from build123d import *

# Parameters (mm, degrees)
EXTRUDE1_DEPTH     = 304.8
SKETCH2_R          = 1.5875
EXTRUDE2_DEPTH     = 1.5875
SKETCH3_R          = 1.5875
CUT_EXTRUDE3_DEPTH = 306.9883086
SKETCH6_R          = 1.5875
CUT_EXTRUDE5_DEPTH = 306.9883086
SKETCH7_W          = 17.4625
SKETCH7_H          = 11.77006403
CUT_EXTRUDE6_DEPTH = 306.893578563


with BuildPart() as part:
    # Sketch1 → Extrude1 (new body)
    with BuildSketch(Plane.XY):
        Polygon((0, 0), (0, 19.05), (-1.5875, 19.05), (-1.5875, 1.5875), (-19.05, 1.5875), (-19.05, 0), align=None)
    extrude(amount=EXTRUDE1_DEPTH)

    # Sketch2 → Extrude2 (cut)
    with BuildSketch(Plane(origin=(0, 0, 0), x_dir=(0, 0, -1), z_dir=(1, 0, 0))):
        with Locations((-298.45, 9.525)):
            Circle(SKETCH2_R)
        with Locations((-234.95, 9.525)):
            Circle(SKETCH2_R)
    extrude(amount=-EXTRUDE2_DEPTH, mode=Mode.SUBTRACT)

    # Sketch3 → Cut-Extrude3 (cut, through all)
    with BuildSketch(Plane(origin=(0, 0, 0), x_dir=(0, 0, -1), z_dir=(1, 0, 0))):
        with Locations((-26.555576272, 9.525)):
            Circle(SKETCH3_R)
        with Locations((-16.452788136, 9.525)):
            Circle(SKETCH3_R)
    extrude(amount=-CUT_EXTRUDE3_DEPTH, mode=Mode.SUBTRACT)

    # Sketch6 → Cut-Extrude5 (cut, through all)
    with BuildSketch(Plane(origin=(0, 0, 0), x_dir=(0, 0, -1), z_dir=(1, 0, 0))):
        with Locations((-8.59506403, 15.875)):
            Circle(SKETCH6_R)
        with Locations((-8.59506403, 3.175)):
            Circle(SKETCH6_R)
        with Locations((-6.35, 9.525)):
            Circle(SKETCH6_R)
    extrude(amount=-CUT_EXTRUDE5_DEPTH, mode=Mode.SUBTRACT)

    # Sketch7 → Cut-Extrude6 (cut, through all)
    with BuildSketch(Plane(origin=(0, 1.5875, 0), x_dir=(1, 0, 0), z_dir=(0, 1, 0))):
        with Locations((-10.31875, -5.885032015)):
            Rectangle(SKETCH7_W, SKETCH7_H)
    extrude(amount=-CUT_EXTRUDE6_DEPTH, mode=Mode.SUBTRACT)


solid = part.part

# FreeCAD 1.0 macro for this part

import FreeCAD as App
import Part
import Sketcher
from FreeCAD import Vector
Q = App.Units.Quantity


def add_polygon(sketch, points):
    """Adds a closed chain of lines whose ends are joined by coincident constraints."""
    first, n = sketch.GeometryCount, len(points)
    for a, b in zip(points, points[1:] + points[:1]):
        sketch.addGeometry(Part.LineSegment(App.Vector(*a, 0), App.Vector(*b, 0)), False)
    for i in range(n):
        sketch.addConstraint(Sketcher.Constraint("Coincident", first + i, 2, first + (i + 1) % n, 1))

doc = App.newDocument("Part")
body = doc.addObject("PartDesign::Body", "Body")

sketch1 = doc.addObject("Sketcher::SketchObject", "Sketch")
body.addObject(sketch1)
sketch1.AttachmentSupport = (doc.XY_Plane, [""])
sketch1.MapMode = "FlatFace"
add_polygon(sketch1, [(0, 0), (0, 19.05), (-1.5875, 19.05), (-1.5875, 1.5875), (-19.05, 1.5875), (-19.05, 0)])
sketch1.addConstraint([
    Sketcher.Constraint("Vertical", 0),
    Sketcher.Constraint("Horizontal", 1),
    Sketcher.Constraint("Vertical", 2),
    Sketcher.Constraint("Horizontal", 3),
    Sketcher.Constraint("Vertical", 4),
    Sketcher.Constraint("Horizontal", 5),
    Sketcher.Constraint("Coincident", 5, 2, -1, 1),
    Sketcher.Constraint("Equal", 5, 0),
    Sketcher.Constraint("Equal", 3, 2),
    Sketcher.Constraint("DistanceX", 5, 1, 5, 2, Q("0.75 in")),
    Sketcher.Constraint("DistanceX", 1, 2, 1, 1, Q("0.0625 in")),
])
pad1 = doc.addObject("PartDesign::Pad", "Pad")
body.addObject(pad1)
pad1.Profile = sketch1
pad1.Length = Q("12 in")

sketch2 = doc.addObject("Sketcher::SketchObject", "Sketch001")
body.addObject(sketch2)
sketch2.AttachmentSupport = (doc.YZ_Plane, [""])
sketch2.MapMode = "FlatFace"
sketch2.addGeometry([
    Part.Circle(Vector(9.525, 298.45, 0), Vector(0, 0, 1), 1.5875),
    Part.Circle(Vector(9.525, 234.95, 0), Vector(0, 0, 1), 1.5875),
], False)
sketch2.addConstraint([
    Sketcher.Constraint("Equal", 0, 1),
    Sketcher.Constraint("Vertical", 0, 3, 1, 3),
    Sketcher.Constraint("Diameter", 0, Q("0.125 in")),
    Sketcher.Constraint("DistanceY", 1, 3, 0, 3, Q("2.5 in")),
    Sketcher.Constraint("DistanceY", -1, 1, 0, 3, Q("11.75 in")),
    Sketcher.Constraint("DistanceX", -1, 1, 0, 3, Q("0.375 in")),
])
pocket1 = doc.addObject("PartDesign::Pocket", "Pocket")
body.addObject(pocket1)
pocket1.Profile = sketch2
pocket1.Length = Q("0.0625 in")

sketch3 = doc.addObject("Sketcher::SketchObject", "Sketch002")
body.addObject(sketch3)
sketch3.AttachmentSupport = (doc.YZ_Plane, [""])
sketch3.MapMode = "FlatFace"
sketch3.addGeometry([
    Part.Circle(Vector(9.525, 26.555576, 0), Vector(0, 0, 1), 1.5875),
    Part.Circle(Vector(9.525, 16.452788, 0), Vector(0, 0, 1), 1.5875),
], False)
sketch3.addConstraint([
    Sketcher.Constraint("Equal", 0, 1),
    Sketcher.Constraint("Vertical", 0, 3, 1, 3),
    Sketcher.Constraint("Diameter", 0, Q("0.125 in")),
    Sketcher.Constraint("DistanceX", -1, 1, 0, 3, Q("0.375 in")),
    Sketcher.Constraint("DistanceY", -1, 1, 1, 3, Q("16.452788 mm")),
    Sketcher.Constraint("DistanceY", 1, 3, 0, 3, Q("10.102788 mm")),
])
pocket2 = doc.addObject("PartDesign::Pocket", "Pocket001")
body.addObject(pocket2)
pocket2.Profile = sketch3
pocket2.Type = "ThroughAll"

sketch4 = doc.addObject("Sketcher::SketchObject", "Sketch003")
body.addObject(sketch4)
sketch4.AttachmentSupport = (doc.YZ_Plane, [""])
sketch4.MapMode = "FlatFace"
sketch4.addGeometry([
    Part.Circle(Vector(15.875, 8.595064, 0), Vector(0, 0, 1), 1.5875),
    Part.Circle(Vector(3.175, 8.595064, 0), Vector(0, 0, 1), 1.5875),
    Part.Circle(Vector(9.525, 6.35, 0), Vector(0, 0, 1), 1.5875),
], False)
sketch4.addConstraint([
    Sketcher.Constraint("Equal", 0, 1),
    Sketcher.Constraint("Equal", 1, 2),
    Sketcher.Constraint("Horizontal", 0, 3, 1, 3),
    Sketcher.Constraint("Diameter", 0, Q("0.125 in")),
    Sketcher.Constraint("DistanceX", 1, 3, 0, 3, Q("0.5 in")),
    Sketcher.Constraint("DistanceY", -1, 1, 2, 3, Q("0.25 in")),
    Sketcher.Constraint("DistanceX", 2, 3, 0, 3, Q("0.25 in")),
    Sketcher.Constraint("DistanceX", -1, 1, 0, 3, Q("0.625 in")),
    Sketcher.Constraint("DistanceY", -1, 1, 0, 3, Q("8.595064 mm")),
])
pocket3 = doc.addObject("PartDesign::Pocket", "Pocket002")
body.addObject(pocket3)
pocket3.Profile = sketch4
pocket3.Type = "ThroughAll"

sketch5 = doc.addObject("Sketcher::SketchObject", "Sketch004")
body.addObject(sketch5)
sketch5.AttachmentSupport = (doc.XZ_Plane, [""])
sketch5.MapMode = "FlatFace"
sketch5.AttachmentOffset = App.Placement(Vector(0, 0, -0.0625 * 25.4), App.Rotation())
add_polygon(sketch5, [(-19.05, 0), (-19.05, 11.770064), (-1.5875, 11.770064), (-1.5875, 0)])
sketch5.addConstraint([
    Sketcher.Constraint("Vertical", 0),
    Sketcher.Constraint("Horizontal", 1),
    Sketcher.Constraint("Vertical", 2),
    Sketcher.Constraint("Horizontal", 3),
    Sketcher.Constraint("PointOnObject", 2, 2, -1),
    Sketcher.Constraint("DistanceX", 1, 1, 1, 2, Q("0.6875 in")),
    Sketcher.Constraint("DistanceX", 0, 2, -1, 1, Q("0.75 in")),
    Sketcher.Constraint("DistanceY", 0, 1, 0, 2, Q("11.770064 mm")),
])
pocket4 = doc.addObject("PartDesign::Pocket", "Pocket003")
body.addObject(pocket4)
pocket4.Profile = sketch5
pocket4.Type = "ThroughAll"
pocket4.Reversed = True

doc.recompute()
